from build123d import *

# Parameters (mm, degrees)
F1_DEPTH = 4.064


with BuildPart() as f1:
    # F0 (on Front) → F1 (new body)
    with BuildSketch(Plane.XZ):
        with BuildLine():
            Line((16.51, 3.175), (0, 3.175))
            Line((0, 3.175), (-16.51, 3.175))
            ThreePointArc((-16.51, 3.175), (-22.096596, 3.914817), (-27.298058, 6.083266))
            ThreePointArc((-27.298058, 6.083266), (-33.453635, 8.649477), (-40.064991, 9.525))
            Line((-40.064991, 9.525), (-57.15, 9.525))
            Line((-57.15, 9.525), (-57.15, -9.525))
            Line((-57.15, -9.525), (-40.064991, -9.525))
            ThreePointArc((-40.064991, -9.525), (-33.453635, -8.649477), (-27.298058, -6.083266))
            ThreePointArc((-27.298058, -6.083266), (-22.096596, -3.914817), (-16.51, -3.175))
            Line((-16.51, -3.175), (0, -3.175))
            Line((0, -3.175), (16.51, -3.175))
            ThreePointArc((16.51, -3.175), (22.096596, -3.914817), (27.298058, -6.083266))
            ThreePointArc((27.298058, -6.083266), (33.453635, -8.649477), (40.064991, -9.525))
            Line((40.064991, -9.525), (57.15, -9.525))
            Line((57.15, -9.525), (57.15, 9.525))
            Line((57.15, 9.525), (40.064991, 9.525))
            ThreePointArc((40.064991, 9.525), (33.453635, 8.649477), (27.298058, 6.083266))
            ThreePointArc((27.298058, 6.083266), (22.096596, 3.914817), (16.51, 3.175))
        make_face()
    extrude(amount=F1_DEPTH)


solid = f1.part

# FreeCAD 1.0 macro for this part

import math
import FreeCAD as App
import Part
import Sketcher
Q = App.Units.Quantity

doc = App.newDocument("Part")
body = doc.addObject("PartDesign::Body", "Body")

# Sketch on XZ plane
sketch1 = body.newObject("Sketcher::SketchObject", "Sketch")
sketch1.AttachmentSupport = (doc.getObject("XZ_Plane"), [""])
sketch1.MapMode = "FlatFace"
sketch1.addGeometry([
    Part.LineSegment(App.Vector(17, 3, 0), App.Vector(-17, 3, 0)),  # 0
    Part.ArcOfCircle(Part.Circle(App.Vector(-17, 25, 0), App.Vector(0, 0, 1), 21), math.radians(-120), math.radians(-90)),  # 1
    Part.ArcOfCircle(Part.Circle(App.Vector(-40, -16, 0), App.Vector(0, 0, 1), 25), math.radians(60), math.radians(90)),  # 2
    Part.LineSegment(App.Vector(-40, 10, 0), App.Vector(-57, 10, 0)),  # 3
    Part.LineSegment(App.Vector(-57, 10, 0), App.Vector(-57, -10, 0)),  # 4
    Part.LineSegment(App.Vector(-57, -10, 0), App.Vector(-40, -10, 0)),  # 5
    Part.ArcOfCircle(Part.Circle(App.Vector(-40, 16, 0), App.Vector(0, 0, 1), 25), math.radians(-90), math.radians(-60)),  # 6
    Part.ArcOfCircle(Part.Circle(App.Vector(-17, -25, 0), App.Vector(0, 0, 1), 21), math.radians(90), math.radians(120)),  # 7
    Part.LineSegment(App.Vector(-17, -3, 0), App.Vector(17, -3, 0)),  # 8
    Part.ArcOfCircle(Part.Circle(App.Vector(17, -25, 0), App.Vector(0, 0, 1), 21), math.radians(60), math.radians(90)),  # 9
    Part.ArcOfCircle(Part.Circle(App.Vector(40, 16, 0), App.Vector(0, 0, 1), 25), math.radians(-120), math.radians(-90)),  # 10
    Part.LineSegment(App.Vector(40, -10, 0), App.Vector(57, -10, 0)),  # 11
    Part.LineSegment(App.Vector(57, -10, 0), App.Vector(57, 10, 0)),  # 12
    Part.LineSegment(App.Vector(57, 10, 0), App.Vector(40, 10, 0)),  # 13
    Part.ArcOfCircle(Part.Circle(App.Vector(40, -16, 0), App.Vector(0, 0, 1), 25), math.radians(90), math.radians(120)),  # 14
    Part.ArcOfCircle(Part.Circle(App.Vector(17, 25, 0), App.Vector(0, 0, 1), 21), math.radians(-90), math.radians(-60)),  # 15
], False)
sketch1.addConstraint([
    Sketcher.Constraint("Tangent", 0, 2, 1, 2),
    Sketcher.Constraint("Tangent", 1, 1, 2, 1),
    Sketcher.Constraint("Tangent", 2, 2, 3, 1),
    Sketcher.Constraint("Coincident", 3, 2, 4, 1),
    Sketcher.Constraint("Coincident", 4, 2, 5, 1),
    Sketcher.Constraint("Tangent", 5, 2, 6, 1),
    Sketcher.Constraint("Tangent", 6, 2, 7, 2),
    Sketcher.Constraint("Tangent", 7, 1, 8, 1),
    Sketcher.Constraint("Tangent", 8, 2, 9, 2),
    Sketcher.Constraint("Tangent", 9, 1, 10, 1),
    Sketcher.Constraint("Tangent", 10, 2, 11, 1),
    Sketcher.Constraint("Coincident", 11, 2, 12, 1),
    Sketcher.Constraint("Coincident", 12, 2, 13, 1),
    Sketcher.Constraint("Tangent", 13, 2, 14, 1),
    Sketcher.Constraint("Tangent", 14, 2, 15, 2),
    Sketcher.Constraint("Tangent", 15, 1, 0, 1),
    Sketcher.Constraint("Horizontal", 0),
    Sketcher.Constraint("Horizontal", 3),
    Sketcher.Constraint("Vertical", 4),
    Sketcher.Constraint("Horizontal", 5),
    Sketcher.Constraint("Horizontal", 8),
    Sketcher.Constraint("Horizontal", 11),
    Sketcher.Constraint("Vertical", 12),
    Sketcher.Constraint("Horizontal", 13),
    Sketcher.Constraint("Equal", 2, 6),
    Sketcher.Constraint("Equal", 1, 7),
    Sketcher.Constraint("Equal", 7, 9),
    Sketcher.Constraint("Equal", 6, 10),
    Sketcher.Constraint("Equal", 10, 14),
    Sketcher.Constraint("Equal", 9, 15),
    Sketcher.Constraint("Symmetric", 1, 3, 9, 3, -1, 1),
    Sketcher.Constraint("Symmetric", 6, 3, 14, 3, -1, 1),
    Sketcher.Constraint("Symmetric", 3, 2, 11, 2, -1, 1),
    Sketcher.Constraint("Symmetric", 6, 3, 10, 3, -2),
    Sketcher.Constraint("DistanceX", 0, 2, 0, 1, Q("1.3 in")),
    Sketcher.Constraint("DistanceY", 4, 2, 4, 1, Q("0.75 in")),
    Sketcher.Constraint("DistanceX", 3, 2, 0, 2, Q("1.6 in")),
    Sketcher.Constraint("DistanceY", 0, 2, 2, 2, Q("0.25 in")),
    Sketcher.Constraint("DistanceY", 2, 3, 1, 3, Q("1.595 in")),
    Sketcher.Constraint("Radius", 1, Q("21.462994 mm")),
])
pad1 = body.newObject("PartDesign::Pad", "Pad")
pad1.Profile = sketch1
pad1.Length = Q("0.16 in")

doc.recompute()
